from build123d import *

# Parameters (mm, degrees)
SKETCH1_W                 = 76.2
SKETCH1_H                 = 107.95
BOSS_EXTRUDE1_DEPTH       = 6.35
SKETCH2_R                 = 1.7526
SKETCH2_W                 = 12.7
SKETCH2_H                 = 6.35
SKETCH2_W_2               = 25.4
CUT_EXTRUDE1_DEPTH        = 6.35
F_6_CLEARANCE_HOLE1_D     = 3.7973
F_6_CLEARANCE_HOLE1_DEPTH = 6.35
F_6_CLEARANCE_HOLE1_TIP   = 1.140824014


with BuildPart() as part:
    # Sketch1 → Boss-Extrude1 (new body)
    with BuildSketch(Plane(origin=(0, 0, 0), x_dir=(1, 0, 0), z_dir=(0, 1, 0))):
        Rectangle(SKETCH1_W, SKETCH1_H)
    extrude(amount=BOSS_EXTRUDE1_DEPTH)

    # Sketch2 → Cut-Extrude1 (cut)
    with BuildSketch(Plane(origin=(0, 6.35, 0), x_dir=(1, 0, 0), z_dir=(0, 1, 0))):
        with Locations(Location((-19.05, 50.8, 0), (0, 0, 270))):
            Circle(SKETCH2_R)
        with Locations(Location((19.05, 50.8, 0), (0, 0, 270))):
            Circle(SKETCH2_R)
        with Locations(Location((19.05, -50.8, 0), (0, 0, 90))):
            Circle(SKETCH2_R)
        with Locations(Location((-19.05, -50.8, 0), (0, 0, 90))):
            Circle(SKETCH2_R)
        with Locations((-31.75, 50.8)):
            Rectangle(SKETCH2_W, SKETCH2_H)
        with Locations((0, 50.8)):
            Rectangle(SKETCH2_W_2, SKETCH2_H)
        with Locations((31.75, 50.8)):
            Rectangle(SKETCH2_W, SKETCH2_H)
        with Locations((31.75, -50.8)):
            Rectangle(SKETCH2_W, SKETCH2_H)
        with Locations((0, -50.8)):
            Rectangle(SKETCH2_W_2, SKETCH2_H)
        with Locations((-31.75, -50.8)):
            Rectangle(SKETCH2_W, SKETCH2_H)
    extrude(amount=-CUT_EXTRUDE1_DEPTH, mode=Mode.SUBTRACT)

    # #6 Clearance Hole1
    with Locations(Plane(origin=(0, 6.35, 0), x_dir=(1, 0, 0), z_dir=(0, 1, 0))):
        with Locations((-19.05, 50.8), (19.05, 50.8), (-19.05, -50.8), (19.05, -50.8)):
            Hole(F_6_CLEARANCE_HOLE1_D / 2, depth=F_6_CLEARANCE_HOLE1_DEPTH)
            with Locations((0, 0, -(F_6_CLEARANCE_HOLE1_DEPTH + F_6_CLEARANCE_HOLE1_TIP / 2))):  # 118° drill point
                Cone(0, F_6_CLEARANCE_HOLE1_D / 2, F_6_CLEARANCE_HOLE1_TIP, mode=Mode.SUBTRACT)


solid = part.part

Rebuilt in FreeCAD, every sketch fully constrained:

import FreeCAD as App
import Part
import Sketcher

V = App.Vector
Q = App.Units.Quantity


def add_polygon(sketch, points):
    """Adds a closed chain of lines whose ends are joined by coincident constraints."""
    first, n = sketch.GeometryCount, len(points)
    for a, b in zip(points, points[1:] + points[:1]):
        sketch.addGeometry(Part.LineSegment(App.Vector(*a, 0), App.Vector(*b, 0)), False)
    for i in range(n):
        sketch.addConstraint(Sketcher.Constraint("Coincident", first + i, 2, first + (i + 1) % n, 1))

doc = App.newDocument("Part")
body = doc.addObject("PartDesign::Body", "Body")

# Sketch on XZ plane
sketch1 = body.newObject("Sketcher::SketchObject", "Sketch")
sketch1.AttachmentSupport = (doc.getObject("XZ_Plane"), [""])
sketch1.MapMode = "FlatFace"
add_polygon(sketch1, [(-38.1, -53.975), (-38.1, 53.975), (38.1, 53.975), (38.1, -53.975)])  # lines 0-3
sketch1.addConstraint(Sketcher.Constraint("Vertical", 0))
sketch1.addConstraint(Sketcher.Constraint("Horizontal", 1))
sketch1.addConstraint(Sketcher.Constraint("Vertical", 2))
sketch1.addConstraint(Sketcher.Constraint("Horizontal", 3))
sketch1.addConstraint(Sketcher.Constraint("Symmetric", 0, 2, 2, 2, -1, 1))
sketch1.addConstraint(Sketcher.Constraint("DistanceX", 1, 1, 1, 2, Q("3 in")))
sketch1.addConstraint(Sketcher.Constraint("DistanceY", 0, 1, 0, 2, Q("4.25 in")))
pad1 = body.newObject("PartDesign::Pad", "Pad")
pad1.Profile = sketch1
pad1.Length = Q("0.25 in")
pad1.Reversed = True

# Sketch on XZ plane
sketch2 = body.newObject("Sketcher::SketchObject", "Sketch001")
sketch2.AttachmentSupport = (doc.getObject("XZ_Plane"), [""])
sketch2.MapMode = "FlatFace"
sketch2.AttachmentOffset = App.Placement(V(0, 0, -0.25 * 25.4), App.Rotation())
sketch2.addGeometry(Part.Circle(V(-19.05, -50.8, 0), V(0, 0, 1), 1.7526), False)  # 0
sketch2.addGeometry(Part.Circle(V(19.05, -50.8, 0), V(0, 0, 1), 1.7526), False)  # 1
sketch2.addGeometry(Part.Circle(V(19.05, 50.8, 0), V(0, 0, 1), 1.7526), False)  # 2
sketch2.addGeometry(Part.Circle(V(-19.05, 50.8, 0), V(0, 0, 1), 1.7526), False)  # 3
add_polygon(sketch2, [(-38.1, -53.975), (-38.1, -47.625), (-25.4, -47.625), (-25.4, -53.975)])  # lines 4-7
add_polygon(sketch2, [(-12.7, -53.975), (-12.7, -47.625), (12.7, -47.625), (12.7, -53.975)])  # lines 8-11
add_polygon(sketch2, [(25.4, -53.975), (25.4, -47.625), (38.1, -47.625), (38.1, -53.975)])  # lines 12-15
add_polygon(sketch2, [(25.4, 47.625), (25.4, 53.975), (38.1, 53.975), (38.1, 47.625)])  # lines 16-19
add_polygon(sketch2, [(-12.7, 47.625), (-12.7, 53.975), (12.7, 53.975), (12.7, 47.625)])  # lines 20-23
add_polygon(sketch2, [(-38.1, 47.625), (-38.1, 53.975), (-25.4, 53.975), (-25.4, 47.625)])  # lines 24-27
sketch2.addConstraint(Sketcher.Constraint("Vertical", 4))
sketch2.addConstraint(Sketcher.Constraint("Horizontal", 5))
sketch2.addConstraint(Sketcher.Constraint("Vertical", 6))
sketch2.addConstraint(Sketcher.Constraint("Horizontal", 7))
sketch2.addConstraint(Sketcher.Constraint("Vertical", 8))
sketch2.addConstraint(Sketcher.Constraint("Horizontal", 9))
sketch2.addConstraint(Sketcher.Constraint("Vertical", 10))
sketch2.addConstraint(Sketcher.Constraint("Horizontal", 11))
sketch2.addConstraint(Sketcher.Constraint("Vertical", 12))
sketch2.addConstraint(Sketcher.Constraint("Horizontal", 13))
sketch2.addConstraint(Sketcher.Constraint("Vertical", 14))
sketch2.addConstraint(Sketcher.Constraint("Horizontal", 15))
sketch2.addConstraint(Sketcher.Constraint("Vertical", 16))
sketch2.addConstraint(Sketcher.Constraint("Horizontal", 17))
sketch2.addConstraint(Sketcher.Constraint("Vertical", 18))
sketch2.addConstraint(Sketcher.Constraint("Horizontal", 19))
sketch2.addConstraint(Sketcher.Constraint("Vertical", 20))
sketch2.addConstraint(Sketcher.Constraint("Horizontal", 21))
sketch2.addConstraint(Sketcher.Constraint("Vertical", 22))
sketch2.addConstraint(Sketcher.Constraint("Horizontal", 23))
sketch2.addConstraint(Sketcher.Constraint("Vertical", 24))
sketch2.addConstraint(Sketcher.Constraint("Horizontal", 25))
sketch2.addConstraint(Sketcher.Constraint("Vertical", 26))
sketch2.addConstraint(Sketcher.Constraint("Horizontal", 27))
sketch2.addConstraint(Sketcher.Constraint("Equal", 0, 1))
sketch2.addConstraint(Sketcher.Constraint("Equal", 1, 2))
sketch2.addConstraint(Sketcher.Constraint("Equal", 2, 3))
sketch2.addConstraint(Sketcher.Constraint("Symmetric", 0, 3, 2, 3, -1, 1))
sketch2.addConstraint(Sketcher.Constraint("Symmetric", 1, 3, 3, 3, -1, 1))
sketch2.addConstraint(Sketcher.Constraint("Symmetric", 6, 2, 16, 2, -1, 1))
sketch2.addConstraint(Sketcher.Constraint("Symmetric", 4, 2, 18, 2, -1, 1))
sketch2.addConstraint(Sketcher.Constraint("Symmetric", 10, 2, 20, 2, -1, 1))
sketch2.addConstraint(Sketcher.Constraint("Symmetric", 8, 2, 22, 2, -1, 1))
sketch2.addConstraint(Sketcher.Constraint("Symmetric", 14, 2, 24, 2, -1, 1))
sketch2.addConstraint(Sketcher.Constraint("Symmetric", 12, 2, 26, 2, -1, 1))
sketch2.addConstraint(Sketcher.Constraint("Symmetric", 0, 3, 1, 3, -2))
sketch2.addConstraint(Sketcher.Constraint("Symmetric", 5, 2, 12, 2, -2))
sketch2.addConstraint(Sketcher.Constraint("Symmetric", 7, 2, 14, 2, -2))
sketch2.addConstraint(Sketcher.Constraint("Horizontal", 5, 2, 8, 2))
sketch2.addConstraint(Sketcher.Constraint("Horizontal", 7, 2, 10, 2))
sketch2.addConstraint(Sketcher.Constraint("Vertical", 11, 2, 20, 2))
sketch2.addConstraint(Sketcher.Constraint("DistanceX", 9, 1, 9, 2, Q("1 in")))
sketch2.addConstraint(Sketcher.Constraint("Diameter", 0, Q("0.138 in")))
sketch2.addConstraint(Sketcher.Constraint("DistanceX", 5, 1, 5, 2, Q("0.5 in")))
sketch2.addConstraint(Sketcher.Constraint("DistanceY", 0, 3, -1, 1, Q("2 in")))
sketch2.addConstraint(Sketcher.Constraint("DistanceX", 5, 2, -1, 1, Q("1 in")))
sketch2.addConstraint(Sketcher.Constraint("DistanceY", 12, 2, 16, 2, Q("4 in")))
sketch2.addConstraint(Sketcher.Constraint("DistanceY", 4, 1, 4, 2, Q("0.25 in")))
sketch2.addConstraint(Sketcher.Constraint("DistanceX", 0, 3, 1, 3, Q("1.5 in")))
pocket1 = body.newObject("PartDesign::Pocket", "Pocket")
pocket1.Profile = sketch2
pocket1.Length = Q("0.25 in")
pocket1.Reversed = True

# Sketch on XZ plane
sketch3 = body.newObject("Sketcher::SketchObject", "Sketch002")
sketch3.AttachmentSupport = (doc.getObject("XZ_Plane"), [""])
sketch3.MapMode = "FlatFace"
sketch3.AttachmentOffset = App.Placement(V(0, 0, -0.25 * 25.4), App.Rotation())
sketch3.addGeometry(Part.Circle(V(-19.05, -50.8, 0), V(0, 0, 1), 1.89865), False)
sketch3.addGeometry(Part.Circle(V(19.05, -50.8, 0), V(0, 0, 1), 1.89865), False)
sketch3.addGeometry(Part.Circle(V(-19.05, 50.8, 0), V(0, 0, 1), 1.89865), False)
sketch3.addGeometry(Part.Circle(V(19.05, 50.8, 0), V(0, 0, 1), 1.89865), False)
sketch3.addConstraint(Sketcher.Constraint("Equal", 0, 1))
sketch3.addConstraint(Sketcher.Constraint("Equal", 1, 2))
sketch3.addConstraint(Sketcher.Constraint("Equal", 2, 3))
sketch3.addConstraint(Sketcher.Constraint("Symmetric", 1, 3, 2, 3, -1, 1))
sketch3.addConstraint(Sketcher.Constraint("Symmetric", 0, 3, 3, 3, -1, 1))
sketch3.addConstraint(Sketcher.Constraint("Symmetric", 0, 3, 1, 3, -2))
sketch3.addConstraint(Sketcher.Constraint("DistanceY", 0, 3, -1, 1, Q("2 in")))
sketch3.addConstraint(Sketcher.Constraint("Diameter", 0, Q("0.1495 in")))
sketch3.addConstraint(Sketcher.Constraint("DistanceX", 0, 3, 1, 3, Q("1.5 in")))
doc.recompute()
hole = body.newObject("PartDesign::Hole", "Hole")
hole.Profile = sketch3
hole.ThreadType = "None"
hole.Diameter = Q("0.1495 in")
hole.DepthType = "Dimension"
hole.Depth = Q("0.25 in")
hole.DrillPoint = "Angled"
hole.DrillPointAngle = 118
hole.Reversed = True

doc.recompute()
